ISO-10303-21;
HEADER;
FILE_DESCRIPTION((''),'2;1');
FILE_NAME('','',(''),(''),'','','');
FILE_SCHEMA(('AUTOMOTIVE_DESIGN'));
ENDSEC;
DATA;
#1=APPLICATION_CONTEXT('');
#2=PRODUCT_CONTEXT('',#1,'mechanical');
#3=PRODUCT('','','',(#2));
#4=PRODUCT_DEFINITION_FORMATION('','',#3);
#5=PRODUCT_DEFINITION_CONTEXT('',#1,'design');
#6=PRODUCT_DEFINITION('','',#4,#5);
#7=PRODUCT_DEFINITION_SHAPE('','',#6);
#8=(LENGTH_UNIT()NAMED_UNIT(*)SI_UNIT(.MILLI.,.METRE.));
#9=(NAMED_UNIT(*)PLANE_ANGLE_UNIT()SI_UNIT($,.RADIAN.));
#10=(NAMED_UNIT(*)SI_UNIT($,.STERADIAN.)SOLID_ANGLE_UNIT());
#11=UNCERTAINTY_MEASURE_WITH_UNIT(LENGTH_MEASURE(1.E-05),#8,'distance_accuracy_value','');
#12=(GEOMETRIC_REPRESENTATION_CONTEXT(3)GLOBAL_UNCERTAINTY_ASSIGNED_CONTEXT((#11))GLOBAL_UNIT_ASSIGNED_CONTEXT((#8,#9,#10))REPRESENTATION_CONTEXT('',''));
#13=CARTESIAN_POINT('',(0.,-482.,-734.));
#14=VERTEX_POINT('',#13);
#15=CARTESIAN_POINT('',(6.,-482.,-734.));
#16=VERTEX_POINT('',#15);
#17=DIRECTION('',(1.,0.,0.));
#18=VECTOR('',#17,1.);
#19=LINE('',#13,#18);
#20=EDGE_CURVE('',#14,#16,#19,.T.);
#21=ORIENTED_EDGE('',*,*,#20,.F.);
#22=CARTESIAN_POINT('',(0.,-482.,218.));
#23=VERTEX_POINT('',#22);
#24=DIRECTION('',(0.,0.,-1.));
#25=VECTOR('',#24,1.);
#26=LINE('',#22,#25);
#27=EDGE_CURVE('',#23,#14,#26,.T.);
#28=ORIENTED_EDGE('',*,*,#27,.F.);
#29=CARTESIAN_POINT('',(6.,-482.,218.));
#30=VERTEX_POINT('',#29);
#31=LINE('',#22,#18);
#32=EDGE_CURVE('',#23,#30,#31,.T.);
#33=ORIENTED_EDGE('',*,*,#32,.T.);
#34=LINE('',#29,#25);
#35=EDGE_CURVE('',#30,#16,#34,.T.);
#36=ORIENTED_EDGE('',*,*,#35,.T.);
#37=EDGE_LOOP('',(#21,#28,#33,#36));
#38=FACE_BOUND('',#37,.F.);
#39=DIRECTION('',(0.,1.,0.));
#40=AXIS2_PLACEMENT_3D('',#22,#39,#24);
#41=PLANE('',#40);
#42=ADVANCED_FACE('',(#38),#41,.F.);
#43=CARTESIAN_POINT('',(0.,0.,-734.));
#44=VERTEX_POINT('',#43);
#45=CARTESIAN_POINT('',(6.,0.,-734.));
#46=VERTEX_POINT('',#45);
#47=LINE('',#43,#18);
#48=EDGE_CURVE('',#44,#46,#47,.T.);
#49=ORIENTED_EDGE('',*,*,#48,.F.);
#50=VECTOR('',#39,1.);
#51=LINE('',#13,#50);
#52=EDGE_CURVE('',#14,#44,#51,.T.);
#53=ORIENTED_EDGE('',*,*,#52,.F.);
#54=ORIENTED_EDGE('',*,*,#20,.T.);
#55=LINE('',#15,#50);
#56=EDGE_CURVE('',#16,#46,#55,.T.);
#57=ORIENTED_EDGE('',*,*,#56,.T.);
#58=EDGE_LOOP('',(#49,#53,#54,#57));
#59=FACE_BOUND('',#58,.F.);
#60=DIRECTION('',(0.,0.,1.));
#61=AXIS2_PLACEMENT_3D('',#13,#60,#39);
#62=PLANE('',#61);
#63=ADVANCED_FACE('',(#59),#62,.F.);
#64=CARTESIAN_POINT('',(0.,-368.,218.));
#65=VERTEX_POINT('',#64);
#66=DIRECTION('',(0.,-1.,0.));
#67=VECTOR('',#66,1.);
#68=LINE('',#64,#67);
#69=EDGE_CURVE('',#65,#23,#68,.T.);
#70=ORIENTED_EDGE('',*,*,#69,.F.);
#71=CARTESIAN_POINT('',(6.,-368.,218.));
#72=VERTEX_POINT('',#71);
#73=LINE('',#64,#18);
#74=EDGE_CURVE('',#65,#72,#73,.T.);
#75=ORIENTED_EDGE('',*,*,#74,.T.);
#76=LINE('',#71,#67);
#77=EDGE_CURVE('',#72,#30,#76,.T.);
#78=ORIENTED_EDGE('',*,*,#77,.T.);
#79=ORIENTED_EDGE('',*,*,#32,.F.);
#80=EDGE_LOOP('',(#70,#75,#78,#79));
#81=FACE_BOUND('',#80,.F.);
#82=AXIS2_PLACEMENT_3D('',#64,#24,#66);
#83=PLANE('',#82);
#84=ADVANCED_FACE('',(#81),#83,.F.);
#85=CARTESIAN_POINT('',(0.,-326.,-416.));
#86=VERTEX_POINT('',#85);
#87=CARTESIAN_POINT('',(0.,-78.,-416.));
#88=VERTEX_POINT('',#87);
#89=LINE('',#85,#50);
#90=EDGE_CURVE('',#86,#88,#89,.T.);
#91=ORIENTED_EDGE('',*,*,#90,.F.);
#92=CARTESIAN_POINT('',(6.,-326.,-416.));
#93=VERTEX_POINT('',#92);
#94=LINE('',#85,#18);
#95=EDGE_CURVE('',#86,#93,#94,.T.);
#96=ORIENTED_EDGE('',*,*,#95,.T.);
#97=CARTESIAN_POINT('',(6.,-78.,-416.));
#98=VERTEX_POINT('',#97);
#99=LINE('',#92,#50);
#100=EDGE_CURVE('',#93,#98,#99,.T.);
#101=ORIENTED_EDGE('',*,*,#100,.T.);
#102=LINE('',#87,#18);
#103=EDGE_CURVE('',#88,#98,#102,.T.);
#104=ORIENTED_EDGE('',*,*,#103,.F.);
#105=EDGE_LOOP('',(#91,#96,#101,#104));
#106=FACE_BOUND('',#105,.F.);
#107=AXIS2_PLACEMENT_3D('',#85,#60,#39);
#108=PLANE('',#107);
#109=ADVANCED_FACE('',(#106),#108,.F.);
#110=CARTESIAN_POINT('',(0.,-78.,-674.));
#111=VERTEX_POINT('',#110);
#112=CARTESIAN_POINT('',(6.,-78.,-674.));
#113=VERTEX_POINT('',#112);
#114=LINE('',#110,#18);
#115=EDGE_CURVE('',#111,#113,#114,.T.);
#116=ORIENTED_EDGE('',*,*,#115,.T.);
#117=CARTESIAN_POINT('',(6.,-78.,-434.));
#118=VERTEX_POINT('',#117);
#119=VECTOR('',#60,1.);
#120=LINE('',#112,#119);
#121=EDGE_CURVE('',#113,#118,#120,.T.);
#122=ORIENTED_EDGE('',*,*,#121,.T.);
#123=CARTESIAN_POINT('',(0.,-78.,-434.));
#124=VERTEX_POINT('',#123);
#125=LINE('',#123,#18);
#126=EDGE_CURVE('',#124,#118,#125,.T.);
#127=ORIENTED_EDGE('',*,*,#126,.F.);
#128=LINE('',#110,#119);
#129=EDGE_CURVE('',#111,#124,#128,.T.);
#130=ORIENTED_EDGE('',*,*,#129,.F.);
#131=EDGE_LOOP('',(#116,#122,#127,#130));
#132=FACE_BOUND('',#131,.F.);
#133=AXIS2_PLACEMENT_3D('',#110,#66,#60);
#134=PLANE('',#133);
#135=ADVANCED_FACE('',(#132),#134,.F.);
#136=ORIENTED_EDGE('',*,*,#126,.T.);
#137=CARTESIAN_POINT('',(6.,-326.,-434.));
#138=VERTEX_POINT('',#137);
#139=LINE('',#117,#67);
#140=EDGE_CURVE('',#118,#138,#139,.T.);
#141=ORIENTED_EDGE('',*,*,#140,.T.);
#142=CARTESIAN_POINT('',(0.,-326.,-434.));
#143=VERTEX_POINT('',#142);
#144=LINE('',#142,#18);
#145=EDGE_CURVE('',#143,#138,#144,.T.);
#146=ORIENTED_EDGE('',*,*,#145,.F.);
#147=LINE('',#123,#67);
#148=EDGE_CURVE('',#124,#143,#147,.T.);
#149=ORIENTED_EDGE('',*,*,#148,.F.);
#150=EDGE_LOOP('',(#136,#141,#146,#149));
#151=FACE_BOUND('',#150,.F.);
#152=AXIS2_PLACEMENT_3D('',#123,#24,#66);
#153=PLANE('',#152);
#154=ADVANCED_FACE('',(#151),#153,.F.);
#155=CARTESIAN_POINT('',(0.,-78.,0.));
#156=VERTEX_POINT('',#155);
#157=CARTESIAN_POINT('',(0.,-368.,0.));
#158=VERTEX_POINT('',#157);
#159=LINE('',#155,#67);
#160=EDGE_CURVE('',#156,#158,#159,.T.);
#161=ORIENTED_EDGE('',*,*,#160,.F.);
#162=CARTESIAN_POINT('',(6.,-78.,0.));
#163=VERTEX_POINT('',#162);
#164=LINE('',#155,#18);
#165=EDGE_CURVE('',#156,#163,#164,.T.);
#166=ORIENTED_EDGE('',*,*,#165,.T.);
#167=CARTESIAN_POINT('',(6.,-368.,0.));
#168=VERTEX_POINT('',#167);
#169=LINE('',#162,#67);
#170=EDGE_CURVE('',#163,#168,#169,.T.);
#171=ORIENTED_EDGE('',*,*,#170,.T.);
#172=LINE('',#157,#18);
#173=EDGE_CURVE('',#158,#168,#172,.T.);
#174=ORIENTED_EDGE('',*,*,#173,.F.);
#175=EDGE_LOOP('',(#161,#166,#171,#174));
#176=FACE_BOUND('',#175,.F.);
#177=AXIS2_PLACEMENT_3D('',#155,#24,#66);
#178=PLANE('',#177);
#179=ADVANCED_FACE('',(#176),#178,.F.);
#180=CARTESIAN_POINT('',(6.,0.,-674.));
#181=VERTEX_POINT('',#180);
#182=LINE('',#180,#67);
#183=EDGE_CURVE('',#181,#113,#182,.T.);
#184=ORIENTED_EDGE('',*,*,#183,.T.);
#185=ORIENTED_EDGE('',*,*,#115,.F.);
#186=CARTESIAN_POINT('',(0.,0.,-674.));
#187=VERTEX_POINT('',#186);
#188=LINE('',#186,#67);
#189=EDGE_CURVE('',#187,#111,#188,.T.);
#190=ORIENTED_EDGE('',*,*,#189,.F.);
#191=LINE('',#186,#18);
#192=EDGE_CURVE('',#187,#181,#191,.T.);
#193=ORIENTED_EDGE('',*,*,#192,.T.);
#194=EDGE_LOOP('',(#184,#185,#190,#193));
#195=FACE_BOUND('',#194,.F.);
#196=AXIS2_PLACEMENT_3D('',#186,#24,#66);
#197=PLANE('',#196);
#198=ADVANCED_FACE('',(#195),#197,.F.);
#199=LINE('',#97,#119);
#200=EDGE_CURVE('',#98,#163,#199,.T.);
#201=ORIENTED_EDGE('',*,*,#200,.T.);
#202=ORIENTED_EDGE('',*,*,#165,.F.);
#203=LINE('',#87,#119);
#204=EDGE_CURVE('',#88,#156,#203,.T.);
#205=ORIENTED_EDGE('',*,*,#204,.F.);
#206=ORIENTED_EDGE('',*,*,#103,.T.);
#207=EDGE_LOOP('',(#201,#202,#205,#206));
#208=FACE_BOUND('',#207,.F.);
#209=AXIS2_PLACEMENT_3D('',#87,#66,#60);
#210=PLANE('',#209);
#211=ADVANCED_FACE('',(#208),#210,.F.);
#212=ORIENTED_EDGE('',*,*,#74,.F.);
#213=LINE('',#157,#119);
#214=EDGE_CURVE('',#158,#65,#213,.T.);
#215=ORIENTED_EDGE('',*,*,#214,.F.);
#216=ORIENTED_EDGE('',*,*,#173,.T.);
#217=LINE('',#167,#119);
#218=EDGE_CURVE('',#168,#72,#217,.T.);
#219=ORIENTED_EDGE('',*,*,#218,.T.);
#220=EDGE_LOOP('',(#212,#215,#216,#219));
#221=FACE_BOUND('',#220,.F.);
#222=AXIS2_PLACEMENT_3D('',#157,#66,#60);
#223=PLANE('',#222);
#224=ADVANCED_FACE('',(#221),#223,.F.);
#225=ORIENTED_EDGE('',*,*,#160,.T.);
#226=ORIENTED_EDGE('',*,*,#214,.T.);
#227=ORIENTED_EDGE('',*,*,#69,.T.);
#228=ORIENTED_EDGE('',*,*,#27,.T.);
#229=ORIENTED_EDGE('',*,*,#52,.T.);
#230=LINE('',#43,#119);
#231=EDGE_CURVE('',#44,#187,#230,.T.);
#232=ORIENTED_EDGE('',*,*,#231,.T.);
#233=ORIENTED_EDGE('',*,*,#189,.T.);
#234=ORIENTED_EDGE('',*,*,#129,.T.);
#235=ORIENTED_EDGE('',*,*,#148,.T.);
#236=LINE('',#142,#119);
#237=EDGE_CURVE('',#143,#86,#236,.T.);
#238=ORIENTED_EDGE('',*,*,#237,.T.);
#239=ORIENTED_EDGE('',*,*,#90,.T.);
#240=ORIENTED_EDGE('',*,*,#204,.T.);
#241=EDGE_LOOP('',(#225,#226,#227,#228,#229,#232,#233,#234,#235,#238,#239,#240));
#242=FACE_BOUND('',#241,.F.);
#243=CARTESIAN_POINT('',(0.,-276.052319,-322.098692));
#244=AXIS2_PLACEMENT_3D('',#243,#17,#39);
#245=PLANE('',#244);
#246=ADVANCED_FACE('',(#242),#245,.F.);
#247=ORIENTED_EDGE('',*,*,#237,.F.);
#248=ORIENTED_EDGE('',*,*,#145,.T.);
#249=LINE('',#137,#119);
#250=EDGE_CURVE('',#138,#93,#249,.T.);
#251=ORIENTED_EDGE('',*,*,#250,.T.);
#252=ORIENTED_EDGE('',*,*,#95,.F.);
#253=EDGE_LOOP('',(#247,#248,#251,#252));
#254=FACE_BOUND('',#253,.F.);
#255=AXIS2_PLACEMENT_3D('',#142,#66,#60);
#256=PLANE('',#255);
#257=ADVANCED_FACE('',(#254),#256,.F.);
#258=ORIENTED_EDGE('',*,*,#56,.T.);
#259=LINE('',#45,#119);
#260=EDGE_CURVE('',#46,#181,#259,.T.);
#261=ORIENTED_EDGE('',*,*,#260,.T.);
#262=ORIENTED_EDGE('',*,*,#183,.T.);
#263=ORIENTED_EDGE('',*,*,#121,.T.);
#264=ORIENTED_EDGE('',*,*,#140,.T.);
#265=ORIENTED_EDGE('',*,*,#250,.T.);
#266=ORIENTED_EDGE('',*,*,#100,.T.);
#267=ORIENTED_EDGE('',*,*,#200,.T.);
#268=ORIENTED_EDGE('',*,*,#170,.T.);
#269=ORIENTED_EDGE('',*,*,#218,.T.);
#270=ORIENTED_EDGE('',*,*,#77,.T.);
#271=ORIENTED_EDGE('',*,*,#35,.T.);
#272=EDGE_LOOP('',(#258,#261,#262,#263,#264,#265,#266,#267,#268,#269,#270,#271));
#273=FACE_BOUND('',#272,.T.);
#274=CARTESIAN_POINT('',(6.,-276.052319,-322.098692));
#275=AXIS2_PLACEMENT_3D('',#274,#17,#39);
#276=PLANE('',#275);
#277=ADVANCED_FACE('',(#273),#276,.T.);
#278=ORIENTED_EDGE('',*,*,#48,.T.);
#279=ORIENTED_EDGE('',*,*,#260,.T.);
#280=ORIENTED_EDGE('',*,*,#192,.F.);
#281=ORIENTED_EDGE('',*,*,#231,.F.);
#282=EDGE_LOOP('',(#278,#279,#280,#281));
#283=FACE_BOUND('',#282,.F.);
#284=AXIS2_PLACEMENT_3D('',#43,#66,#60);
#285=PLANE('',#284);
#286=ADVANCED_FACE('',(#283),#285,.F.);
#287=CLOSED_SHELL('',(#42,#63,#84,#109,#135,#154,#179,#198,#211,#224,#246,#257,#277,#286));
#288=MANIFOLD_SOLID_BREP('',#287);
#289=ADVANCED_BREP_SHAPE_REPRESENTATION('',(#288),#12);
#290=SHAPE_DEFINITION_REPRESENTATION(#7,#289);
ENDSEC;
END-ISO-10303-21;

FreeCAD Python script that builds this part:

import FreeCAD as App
import Part
import Sketcher
Q = App.Units.Quantity

doc = App.newDocument("Part")
body = doc.addObject("PartDesign::Body", "Body")

sketch1 = doc.addObject("Sketcher::SketchObject", "Sketch")
body.addObject(sketch1)
sketch1.AttachmentSupport = (doc.YZ_Plane, [""])
sketch1.MapMode = "FlatFace"
sketch1.addGeometry([
    Part.LineSegment(App.Vector(-368, 218, 0), App.Vector(-482, 218, 0)),
    Part.LineSegment(App.Vector(-482, 218, 0), App.Vector(-482, -734, 0)),
    Part.LineSegment(App.Vector(-482, -734, 0), App.Vector(0, -734, 0)),
    Part.LineSegment(App.Vector(0, -734, 0), App.Vector(0, -674, 0)),
    Part.LineSegment(App.Vector(0, -674, 0), App.Vector(-78, -674, 0)),
    Part.LineSegment(App.Vector(-78, -674, 0), App.Vector(-78, -434, 0)),
    Part.LineSegment(App.Vector(-78, -434, 0), App.Vector(-326, -434, 0)),
    Part.LineSegment(App.Vector(-326, -434, 0), App.Vector(-326, -416, 0)),
    Part.LineSegment(App.Vector(-326, -416, 0), App.Vector(-78, -416, 0)),
    Part.LineSegment(App.Vector(-78, -416, 0), App.Vector(-78, 0, 0)),
    Part.LineSegment(App.Vector(-78, 0, 0), App.Vector(-368, 0, 0)),
    Part.LineSegment(App.Vector(-368, 0, 0), App.Vector(-368, 218, 0)),
], False)
sketch1.addConstraint([
    Sketcher.Constraint("Coincident", 0, 2, 1, 1),
    Sketcher.Constraint("Coincident", 1, 2, 2, 1),
    Sketcher.Constraint("Coincident", 2, 2, 3, 1),
    Sketcher.Constraint("Coincident", 3, 2, 4, 1),
    Sketcher.Constraint("Coincident", 4, 2, 5, 1),
    Sketcher.Constraint("Coincident", 5, 2, 6, 1),
    Sketcher.Constraint("Coincident", 6, 2, 7, 1),
    Sketcher.Constraint("Coincident", 7, 2, 8, 1),
    Sketcher.Constraint("Coincident", 8, 2, 9, 1),
    Sketcher.Constraint("Coincident", 9, 2, 10, 1),
    Sketcher.Constraint("Coincident", 10, 2, 11, 1),
    Sketcher.Constraint("Coincident", 11, 2, 0, 1),
    Sketcher.Constraint("Horizontal", 0),
    Sketcher.Constraint("Vertical", 1),
    Sketcher.Constraint("Horizontal", 2),
    Sketcher.Constraint("Vertical", 3),
    Sketcher.Constraint("Horizontal", 4),
    Sketcher.Constraint("Vertical", 5),
    Sketcher.Constraint("Horizontal", 6),
    Sketcher.Constraint("Vertical", 7),
    Sketcher.Constraint("Horizontal", 8),
    Sketcher.Constraint("Vertical", 9),
    Sketcher.Constraint("Horizontal", 10),
    Sketcher.Constraint("Vertical", 11),
    Sketcher.Constraint("PointOnObject", 2, 2, -2),
    Sketcher.Constraint("PointOnObject", 9, 2, -1),
    Sketcher.Constraint("Vertical", 5, 2, 8, 2),
    Sketcher.Constraint("DistanceX", 0, 2, 0, 1, Q("114 mm")),
    Sketcher.Constraint("DistanceX", 2, 1, 2, 2, Q("482 mm")),
    Sketcher.Constraint("DistanceX", 4, 2, 4, 1, Q("78 mm")),
    Sketcher.Constraint("DistanceX", 6, 2, 6, 1, Q("248 mm")),
    Sketcher.Constraint("DistanceY", 1, 2, 1, 1, Q("952 mm")),
    Sketcher.Constraint("DistanceY", 3, 1, 3, 2, Q("60 mm")),
    Sketcher.Constraint("DistanceY", 5, 1, 5, 2, Q("240 mm")),
    Sketcher.Constraint("DistanceY", 7, 1, 7, 2, Q("18 mm")),
    Sketcher.Constraint("DistanceY", 9, 1, 9, 2, Q("416 mm")),
])
pad1 = doc.addObject("PartDesign::Pad", "Pad")
body.addObject(pad1)
pad1.Profile = sketch1
pad1.Length = 6

doc.recompute()
